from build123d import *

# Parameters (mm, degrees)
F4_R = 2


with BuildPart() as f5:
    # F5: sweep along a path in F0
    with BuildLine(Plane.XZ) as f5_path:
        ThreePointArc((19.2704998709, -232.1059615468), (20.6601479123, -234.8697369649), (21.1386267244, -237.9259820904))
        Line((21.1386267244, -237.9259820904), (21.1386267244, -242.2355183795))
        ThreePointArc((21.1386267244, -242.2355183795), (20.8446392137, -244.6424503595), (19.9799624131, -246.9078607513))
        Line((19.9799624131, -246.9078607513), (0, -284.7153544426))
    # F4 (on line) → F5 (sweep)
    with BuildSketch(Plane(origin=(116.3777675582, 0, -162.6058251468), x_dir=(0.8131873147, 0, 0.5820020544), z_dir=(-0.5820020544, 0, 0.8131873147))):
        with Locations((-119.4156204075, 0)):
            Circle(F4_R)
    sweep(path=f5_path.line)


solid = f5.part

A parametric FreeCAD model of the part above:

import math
import FreeCAD as App
import Part
import Sketcher
from FreeCAD import Vector

doc = App.newDocument("Part")
body = doc.addObject("PartDesign::Body", "Body")

# Sketch on an angled plane
sketch1 = body.newObject("Sketcher::SketchObject", "Sketch")
sketch1.Placement = App.Placement(Vector(116.377768, 0, -162.605825), App.Rotation(Vector(0.813187315, 0, 0.582002054), Vector(0, 1, 0), Vector(-0.582002054, 0, 0.813187315), "ZXY"))
sketch1.addGeometry(Part.Circle(Vector(-119.41562, 0, 0), Vector(0, 0, 1), 2), False)
sketch1.addConstraint([
    Sketcher.Constraint("PointOnObject", 0, 3, -1),
    Sketcher.Constraint("Diameter", 0, 4.0),
    Sketcher.Constraint("DistanceX", 0, 3, -1, 1, 119.41562),
])

# Sketch on XZ plane
sketch2 = body.newObject("Sketcher::SketchObject", "Sketch001")
sketch2.AttachmentSupport = (doc.getObject("XZ_Plane"), [""])
sketch2.MapMode = "FlatFace"
sketch2.addGeometry([
    Part.ArcOfCircle(Part.Circle(Vector(11.138627, -237.925982, 0), Vector(0, 0, 1), 10), math.radians(0), math.radians(35.59148)),
    Part.LineSegment(Vector(21.138627, -237.925982, 0), Vector(21.138627, -242.235518, 0)),
    Part.ArcOfCircle(Part.Circle(Vector(11.138627, -242.235518, 0), Vector(0, 0, 1), 10), math.radians(-27.854914), math.radians(0)),
    Part.LineSegment(Vector(19.979962, -246.907861, 0), Vector(0, -284.715354, 0)),
], False)
sketch2.addConstraint([
    Sketcher.Constraint("Tangent", 0, 1, 1, 1),
    Sketcher.Constraint("Tangent", 1, 2, 2, 2),
    Sketcher.Constraint("Tangent", 2, 1, 3, 1),
    Sketcher.Constraint("Vertical", 1),
    Sketcher.Constraint("Equal", 0, 2),
    Sketcher.Constraint("PointOnObject", 3, 2, -2),
    Sketcher.Constraint("Radius", 0, 10.0),
    Sketcher.Constraint("DistanceX", -1, 1, 0, 2, 19.2705),
    Sketcher.Constraint("DistanceY", 2, 1, 0, 2, 14.801899),
    Sketcher.Constraint("DistanceY", 1, 2, 1, 1, 4.309536),
    Sketcher.Constraint("DistanceY", 2, 3, -1, 1, 242.235518),
    Sketcher.Constraint("DistanceY", 0, 2, -1, 1, 232.105962),
])
doc.recompute()

additivepipe = body.newObject("PartDesign::AdditivePipe", "AdditivePipe")
additivepipe.Profile = sketch1
additivepipe.Spine = (sketch2, ["Edge1", "Edge2", "Edge3", "Edge4"])

doc.recompute()
